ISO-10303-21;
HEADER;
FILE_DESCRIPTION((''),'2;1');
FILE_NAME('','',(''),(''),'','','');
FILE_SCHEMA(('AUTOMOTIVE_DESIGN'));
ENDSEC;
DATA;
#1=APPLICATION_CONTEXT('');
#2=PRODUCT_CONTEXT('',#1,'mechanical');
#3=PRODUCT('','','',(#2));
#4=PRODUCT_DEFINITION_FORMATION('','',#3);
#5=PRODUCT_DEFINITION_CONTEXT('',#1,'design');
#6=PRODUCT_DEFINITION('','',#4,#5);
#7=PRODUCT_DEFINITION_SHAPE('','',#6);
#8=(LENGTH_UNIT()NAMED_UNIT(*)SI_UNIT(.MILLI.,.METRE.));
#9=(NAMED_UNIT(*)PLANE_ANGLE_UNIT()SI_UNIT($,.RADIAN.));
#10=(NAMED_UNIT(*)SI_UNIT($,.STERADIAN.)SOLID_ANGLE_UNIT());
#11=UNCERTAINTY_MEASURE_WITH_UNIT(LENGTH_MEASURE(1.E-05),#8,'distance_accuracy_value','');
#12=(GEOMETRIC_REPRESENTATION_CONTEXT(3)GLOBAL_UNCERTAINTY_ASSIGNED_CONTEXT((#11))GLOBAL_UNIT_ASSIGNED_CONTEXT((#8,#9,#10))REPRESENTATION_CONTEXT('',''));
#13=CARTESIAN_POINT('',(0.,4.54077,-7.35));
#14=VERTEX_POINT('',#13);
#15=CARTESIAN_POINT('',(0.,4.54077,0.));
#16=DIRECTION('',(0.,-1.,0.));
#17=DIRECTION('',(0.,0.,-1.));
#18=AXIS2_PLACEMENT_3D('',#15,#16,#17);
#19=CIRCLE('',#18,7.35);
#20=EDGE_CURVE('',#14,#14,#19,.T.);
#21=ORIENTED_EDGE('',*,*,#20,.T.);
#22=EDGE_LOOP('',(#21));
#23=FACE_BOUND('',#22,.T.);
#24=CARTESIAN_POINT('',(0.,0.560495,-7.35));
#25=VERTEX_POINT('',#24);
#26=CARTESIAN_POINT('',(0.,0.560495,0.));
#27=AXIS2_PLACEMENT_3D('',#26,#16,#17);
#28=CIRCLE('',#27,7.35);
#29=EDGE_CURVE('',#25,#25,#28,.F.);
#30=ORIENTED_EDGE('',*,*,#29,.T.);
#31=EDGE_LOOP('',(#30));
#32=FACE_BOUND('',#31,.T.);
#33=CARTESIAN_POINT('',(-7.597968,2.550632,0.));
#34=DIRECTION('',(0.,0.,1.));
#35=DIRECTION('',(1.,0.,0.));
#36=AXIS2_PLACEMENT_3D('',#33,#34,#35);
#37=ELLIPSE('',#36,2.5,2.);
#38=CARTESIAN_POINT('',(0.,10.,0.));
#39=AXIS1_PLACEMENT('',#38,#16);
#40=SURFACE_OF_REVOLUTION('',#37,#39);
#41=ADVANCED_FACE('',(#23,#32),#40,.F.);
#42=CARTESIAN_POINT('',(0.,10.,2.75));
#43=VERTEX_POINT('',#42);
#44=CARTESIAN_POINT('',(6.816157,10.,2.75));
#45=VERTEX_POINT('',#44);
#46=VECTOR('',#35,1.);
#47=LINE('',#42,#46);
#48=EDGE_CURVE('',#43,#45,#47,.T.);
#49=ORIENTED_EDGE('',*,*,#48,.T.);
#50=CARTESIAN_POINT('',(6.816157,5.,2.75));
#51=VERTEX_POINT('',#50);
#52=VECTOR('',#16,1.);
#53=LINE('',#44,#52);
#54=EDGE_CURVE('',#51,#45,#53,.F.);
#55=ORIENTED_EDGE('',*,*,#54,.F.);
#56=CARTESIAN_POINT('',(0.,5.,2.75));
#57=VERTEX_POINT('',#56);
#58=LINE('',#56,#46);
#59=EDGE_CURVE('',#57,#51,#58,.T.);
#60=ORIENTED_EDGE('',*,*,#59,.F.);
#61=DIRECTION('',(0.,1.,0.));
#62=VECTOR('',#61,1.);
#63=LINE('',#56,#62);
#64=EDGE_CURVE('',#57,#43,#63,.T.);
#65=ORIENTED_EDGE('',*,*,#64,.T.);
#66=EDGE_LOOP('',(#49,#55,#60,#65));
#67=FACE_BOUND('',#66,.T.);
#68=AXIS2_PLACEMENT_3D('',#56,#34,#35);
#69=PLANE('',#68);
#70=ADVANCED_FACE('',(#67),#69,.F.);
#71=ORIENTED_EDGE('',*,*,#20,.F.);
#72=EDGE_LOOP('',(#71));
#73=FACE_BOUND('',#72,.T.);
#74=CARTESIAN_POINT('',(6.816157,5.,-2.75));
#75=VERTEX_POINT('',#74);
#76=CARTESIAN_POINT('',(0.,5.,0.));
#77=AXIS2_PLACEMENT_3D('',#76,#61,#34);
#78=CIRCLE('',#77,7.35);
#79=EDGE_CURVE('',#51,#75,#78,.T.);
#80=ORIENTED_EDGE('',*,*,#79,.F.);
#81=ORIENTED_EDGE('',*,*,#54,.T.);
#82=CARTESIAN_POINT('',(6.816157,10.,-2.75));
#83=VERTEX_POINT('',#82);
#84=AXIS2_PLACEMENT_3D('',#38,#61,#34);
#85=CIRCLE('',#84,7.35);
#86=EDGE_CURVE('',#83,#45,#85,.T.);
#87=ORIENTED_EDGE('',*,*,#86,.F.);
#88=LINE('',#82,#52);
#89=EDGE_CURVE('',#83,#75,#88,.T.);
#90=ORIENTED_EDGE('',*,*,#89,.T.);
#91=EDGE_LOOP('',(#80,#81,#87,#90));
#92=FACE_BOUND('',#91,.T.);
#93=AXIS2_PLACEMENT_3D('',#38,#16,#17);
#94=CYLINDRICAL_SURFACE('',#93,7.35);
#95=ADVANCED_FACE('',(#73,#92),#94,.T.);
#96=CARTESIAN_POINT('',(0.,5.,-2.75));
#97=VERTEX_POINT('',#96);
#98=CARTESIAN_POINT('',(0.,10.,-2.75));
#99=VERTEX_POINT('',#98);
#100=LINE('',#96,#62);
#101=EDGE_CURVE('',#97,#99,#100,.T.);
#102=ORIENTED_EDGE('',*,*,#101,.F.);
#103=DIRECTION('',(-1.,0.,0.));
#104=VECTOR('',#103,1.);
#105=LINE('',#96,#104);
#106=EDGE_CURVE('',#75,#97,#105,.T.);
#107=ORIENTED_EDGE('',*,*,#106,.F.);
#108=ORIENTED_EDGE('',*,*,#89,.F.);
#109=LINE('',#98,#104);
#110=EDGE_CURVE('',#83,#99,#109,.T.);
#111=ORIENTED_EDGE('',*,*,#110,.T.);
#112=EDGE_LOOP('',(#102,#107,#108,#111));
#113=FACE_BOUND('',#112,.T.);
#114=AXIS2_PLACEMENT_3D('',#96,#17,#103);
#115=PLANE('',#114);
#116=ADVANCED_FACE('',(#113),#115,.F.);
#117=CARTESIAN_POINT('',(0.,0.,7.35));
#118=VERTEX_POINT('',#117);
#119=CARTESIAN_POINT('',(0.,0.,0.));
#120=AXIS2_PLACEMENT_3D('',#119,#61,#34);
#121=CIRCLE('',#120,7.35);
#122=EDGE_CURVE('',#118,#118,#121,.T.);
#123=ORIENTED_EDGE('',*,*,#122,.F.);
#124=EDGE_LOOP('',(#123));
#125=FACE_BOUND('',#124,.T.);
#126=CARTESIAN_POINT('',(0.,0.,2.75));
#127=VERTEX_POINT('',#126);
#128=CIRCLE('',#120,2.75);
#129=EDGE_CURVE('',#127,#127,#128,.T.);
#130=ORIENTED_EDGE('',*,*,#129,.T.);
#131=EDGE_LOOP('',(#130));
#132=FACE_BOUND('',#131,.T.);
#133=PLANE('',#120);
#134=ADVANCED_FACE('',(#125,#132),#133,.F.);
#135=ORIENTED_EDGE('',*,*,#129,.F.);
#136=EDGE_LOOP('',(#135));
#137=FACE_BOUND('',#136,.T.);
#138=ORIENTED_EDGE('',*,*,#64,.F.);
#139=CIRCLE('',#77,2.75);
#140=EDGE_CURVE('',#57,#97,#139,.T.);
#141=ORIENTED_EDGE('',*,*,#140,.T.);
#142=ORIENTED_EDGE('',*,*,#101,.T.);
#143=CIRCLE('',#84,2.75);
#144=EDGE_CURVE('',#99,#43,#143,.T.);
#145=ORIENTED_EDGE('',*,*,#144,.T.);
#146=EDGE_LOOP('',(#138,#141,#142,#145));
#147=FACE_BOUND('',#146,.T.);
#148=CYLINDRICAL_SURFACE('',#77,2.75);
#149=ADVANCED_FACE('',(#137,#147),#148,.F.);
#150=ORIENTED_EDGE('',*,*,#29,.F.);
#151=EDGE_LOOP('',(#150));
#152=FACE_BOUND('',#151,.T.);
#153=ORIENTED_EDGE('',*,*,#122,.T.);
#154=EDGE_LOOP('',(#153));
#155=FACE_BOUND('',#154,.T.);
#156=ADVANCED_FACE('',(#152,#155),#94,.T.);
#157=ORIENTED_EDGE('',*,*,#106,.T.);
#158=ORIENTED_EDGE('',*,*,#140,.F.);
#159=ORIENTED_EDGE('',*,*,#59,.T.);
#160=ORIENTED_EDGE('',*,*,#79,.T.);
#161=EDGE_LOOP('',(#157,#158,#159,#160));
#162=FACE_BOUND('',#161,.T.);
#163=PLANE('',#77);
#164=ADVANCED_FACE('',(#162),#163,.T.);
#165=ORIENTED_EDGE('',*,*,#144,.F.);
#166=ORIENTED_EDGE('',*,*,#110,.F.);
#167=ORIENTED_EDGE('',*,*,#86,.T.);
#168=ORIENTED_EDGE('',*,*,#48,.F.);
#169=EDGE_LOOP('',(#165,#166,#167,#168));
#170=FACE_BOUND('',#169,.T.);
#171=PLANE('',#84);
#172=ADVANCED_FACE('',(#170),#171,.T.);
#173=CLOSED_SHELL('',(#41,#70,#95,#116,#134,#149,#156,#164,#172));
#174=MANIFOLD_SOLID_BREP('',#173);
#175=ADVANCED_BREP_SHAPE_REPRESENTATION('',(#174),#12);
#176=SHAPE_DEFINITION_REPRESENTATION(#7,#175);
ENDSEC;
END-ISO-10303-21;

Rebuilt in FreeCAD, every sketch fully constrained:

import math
import FreeCAD as App
import Part
import Sketcher
Q = App.Units.Quantity

doc = App.newDocument("Part")
params = doc.addObject("Spreadsheet::Sheet", "Params")
for row, (alias, value) in enumerate([
    ("sketch1_diameter", "14.7 mm"),
    ("pad1_length", "10 mm"),
    ("sketch2_radius", "2.75 mm"),
    ("pocket1_length", "5 mm"),
    ("sketch3_diameter", "5.5 mm"),
    ("groove_angle", "360 deg"),
], start=1):
    params.set(f"A{row}", alias)
    params.set(f"B{row}", "=" + value)
    params.setAlias(f"B{row}", alias)

body = doc.addObject("PartDesign::Body", "Body")

sketch1 = body.newObject("Sketcher::SketchObject", "Sketch")
sketch1.AttachmentSupport = (doc.getObject("XZ_Plane"), [""])
sketch1.MapMode = "FlatFace"
sketch1.addGeometry(Part.Circle(App.Vector(0, 0, 0), App.Vector(0, 0, 1), 7), False)
sketch1.addConstraint([
    Sketcher.Constraint("Coincident", 0, 3, -1, 1),
    Sketcher.Constraint("Diameter", 0, Q("14.7 mm")),
])
sketch1.setExpression("Constraints[1]", "Params.sketch1_diameter")
pad1 = body.newObject("PartDesign::Pad", "Pad")
pad1.Profile = sketch1
pad1.setExpression("Length", "Params.pad1_length")
pad1.Reversed = True

sketch2 = body.newObject("Sketcher::SketchObject", "Sketch001")
sketch2.AttachmentSupport = (doc.getObject("XZ_Plane"), [""])
sketch2.MapMode = "FlatFace"
sketch2.AttachmentOffset = App.Placement(App.Vector(0, 0, -10), App.Rotation())
sketch2.addGeometry([
    Part.LineSegment(App.Vector(9.4, -2.8, 0), App.Vector(0, -2.8, 0)),
    Part.ArcOfCircle(Part.Circle(App.Vector(0, 0, 0), App.Vector(0, 0, 1), 2.8), math.radians(90), math.radians(270)),
    Part.LineSegment(App.Vector(0, 2.8, 0), App.Vector(9.7, 2.8, 0)),
    Part.LineSegment(App.Vector(9.7, 2.8, 0), App.Vector(9.4, -2.8, 0)),
], False)
sketch2.addConstraint([
    Sketcher.Constraint("Tangent", 0, 2, 1, 2),
    Sketcher.Constraint("Tangent", 1, 1, 2, 1),
    Sketcher.Constraint("Coincident", 2, 2, 3, 1),
    Sketcher.Constraint("Coincident", 3, 2, 0, 1),
    Sketcher.Constraint("Horizontal", 0),
    Sketcher.Constraint("Horizontal", 2),
    Sketcher.Constraint("Coincident", 1, 3, -1, 1),
    Sketcher.Constraint("Radius", 1, Q("2.75 mm")),
    Sketcher.Constraint("DistanceX", 0, 2, 0, 1, Q("9.42505 mm")),
    Sketcher.Constraint("DistanceX", 2, 1, 2, 2, Q("9.711324 mm")),
])
sketch2.setExpression("Constraints[7]", "Params.sketch2_radius")
pocket1 = body.newObject("PartDesign::Pocket", "Pocket")
pocket1.Profile = sketch2
pocket1.setExpression("Length", "Params.pocket1_length")
pocket1.Reversed = True

sketch3 = body.newObject("Sketcher::SketchObject", "Sketch002")
sketch3.AttachmentSupport = (doc.getObject("XZ_Plane"), [""])
sketch3.MapMode = "FlatFace"
sketch3.AttachmentOffset = App.Placement(App.Vector(0, 0, -10), App.Rotation())
sketch3.addGeometry(Part.Circle(App.Vector(0, 0, 0), App.Vector(0, 0, 1), 2.8), False)
sketch3.addConstraint([
    Sketcher.Constraint("Coincident", 0, 3, -1, 1),
    Sketcher.Constraint("Diameter", 0, Q("5.5 mm")),
])
sketch3.setExpression("Constraints[1]", "Params.sketch3_diameter")
pocket2 = body.newObject("PartDesign::Pocket", "Pocket001")
pocket2.Profile = sketch3
pocket2.Type = "ThroughAll"
pocket2.Midplane = True

sketch4 = body.newObject("Sketcher::SketchObject", "Sketch003")
sketch4.AttachmentSupport = (doc.getObject("XY_Plane"), [""])
sketch4.MapMode = "FlatFace"
sketch4.addGeometry(Part.Ellipse(App.Vector(-5.097968, 2.550632, 0), App.Vector(-7.597968, 4.550632, 0), App.Vector(-7.597968, 2.550632, 0)), False)
sketch4.addConstraint(Sketcher.Constraint("Block", 0))
groove = body.newObject("PartDesign::Groove", "Groove")
groove.Profile = sketch4
groove.ReferenceAxis = (sketch4, ["V_Axis"])
groove.setExpression("Angle", "Params.groove_angle")

doc.recompute()
